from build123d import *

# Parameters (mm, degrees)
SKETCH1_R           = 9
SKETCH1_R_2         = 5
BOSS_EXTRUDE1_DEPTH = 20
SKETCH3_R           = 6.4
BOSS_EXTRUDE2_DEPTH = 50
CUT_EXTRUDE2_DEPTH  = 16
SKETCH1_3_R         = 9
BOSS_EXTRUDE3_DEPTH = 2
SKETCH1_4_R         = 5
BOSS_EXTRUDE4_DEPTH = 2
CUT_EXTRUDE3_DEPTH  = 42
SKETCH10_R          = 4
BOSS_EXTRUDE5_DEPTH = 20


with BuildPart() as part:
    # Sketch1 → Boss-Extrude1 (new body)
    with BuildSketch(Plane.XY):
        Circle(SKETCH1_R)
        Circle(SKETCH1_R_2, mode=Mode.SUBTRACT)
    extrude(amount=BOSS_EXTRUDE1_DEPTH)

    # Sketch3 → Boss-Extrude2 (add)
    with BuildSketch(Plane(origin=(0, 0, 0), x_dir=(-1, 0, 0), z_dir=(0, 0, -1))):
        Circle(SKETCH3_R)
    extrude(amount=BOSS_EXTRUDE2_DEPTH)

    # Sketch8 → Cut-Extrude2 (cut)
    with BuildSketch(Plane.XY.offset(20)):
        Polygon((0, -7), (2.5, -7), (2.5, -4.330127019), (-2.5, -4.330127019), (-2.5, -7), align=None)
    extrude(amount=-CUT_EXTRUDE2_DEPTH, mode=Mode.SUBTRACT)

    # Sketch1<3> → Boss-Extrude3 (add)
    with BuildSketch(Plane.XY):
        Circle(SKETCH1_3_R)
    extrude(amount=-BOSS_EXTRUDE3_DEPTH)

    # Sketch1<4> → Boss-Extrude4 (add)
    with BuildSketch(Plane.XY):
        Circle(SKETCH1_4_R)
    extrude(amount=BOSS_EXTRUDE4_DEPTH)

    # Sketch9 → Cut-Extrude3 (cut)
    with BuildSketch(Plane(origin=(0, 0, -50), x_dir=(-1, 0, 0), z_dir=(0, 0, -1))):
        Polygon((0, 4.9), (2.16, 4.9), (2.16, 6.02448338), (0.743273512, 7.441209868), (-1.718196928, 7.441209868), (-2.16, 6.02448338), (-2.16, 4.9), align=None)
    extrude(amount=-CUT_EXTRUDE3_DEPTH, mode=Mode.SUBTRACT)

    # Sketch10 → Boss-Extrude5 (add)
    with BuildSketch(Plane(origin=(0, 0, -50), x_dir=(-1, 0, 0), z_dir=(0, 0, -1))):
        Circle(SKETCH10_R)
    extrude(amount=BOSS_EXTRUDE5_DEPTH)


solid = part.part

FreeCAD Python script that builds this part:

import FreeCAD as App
import Part
import Sketcher
from FreeCAD import Vector
Q = App.Units.Quantity


def add_polygon(sketch, points):
    """Adds a closed chain of lines whose ends are joined by coincident constraints."""
    first, n = sketch.GeometryCount, len(points)
    for a, b in zip(points, points[1:] + points[:1]):
        sketch.addGeometry(Part.LineSegment(App.Vector(*a, 0), App.Vector(*b, 0)), False)
    for i in range(n):
        sketch.addConstraint(Sketcher.Constraint("Coincident", first + i, 2, first + (i + 1) % n, 1))

doc = App.newDocument("Part")
body = doc.addObject("PartDesign::Body", "Body")

# Sketch on XY plane
sketch1 = body.newObject("Sketcher::SketchObject", "Sketch")
sketch1.AttachmentSupport = (doc.getObject("XY_Plane"), [""])
sketch1.MapMode = "FlatFace"
sketch1.addGeometry([
    Part.Circle(Vector(0, 0, 0), Vector(0, 0, 1), 9),
    Part.Circle(Vector(0, 0, 0), Vector(0, 0, 1), 5),
], False)
sketch1.addConstraint([
    Sketcher.Constraint("Coincident", 0, 3, -1, 1),
    Sketcher.Constraint("Coincident", 1, 3, -1, 1),
    Sketcher.Constraint("Diameter", 0, 18.0),
    Sketcher.Constraint("Diameter", 1, 10.0),
])
pad1 = body.newObject("PartDesign::Pad", "Pad")
pad1.Profile = sketch1
pad1.Length = 20

# Sketch on XY plane
sketch2 = body.newObject("Sketcher::SketchObject", "Sketch001")
sketch2.AttachmentSupport = (doc.getObject("XY_Plane"), [""])
sketch2.MapMode = "FlatFace"
sketch2.addGeometry(Part.Circle(Vector(0, 0, 0), Vector(0, 0, 1), 6), False)
sketch2.addConstraint([
    Sketcher.Constraint("Coincident", 0, 3, -1, 1),
    Sketcher.Constraint("Diameter", 0, 12.8),
])
pad2 = body.newObject("PartDesign::Pad", "Pad001")
pad2.Profile = sketch2
pad2.Length = 50
pad2.Reversed = True

# Sketch on XY plane
sketch3 = body.newObject("Sketcher::SketchObject", "Sketch002")
sketch3.AttachmentSupport = (doc.getObject("XY_Plane"), [""])
sketch3.MapMode = "FlatFace"
sketch3.AttachmentOffset = App.Placement(Vector(0, 0, 20), App.Rotation())
add_polygon(sketch3, [(2.5, -7), (2.5, -4.3), (-2.5, -4.3), (-2.5, -7)])  # lines 0-3
sketch3.addConstraint([
    Sketcher.Constraint("Vertical", 0),
    Sketcher.Constraint("Horizontal", 1),
    Sketcher.Constraint("Vertical", 2),
    Sketcher.Constraint("Horizontal", 3),
    Sketcher.Constraint("DistanceX", 1, 2, 1, 1, 5.0),
    Sketcher.Constraint("DistanceY", 2, 2, -1, 1, 7.0),
    Sketcher.Constraint("DistanceX", -1, 1, 0, 2, 2.5),
    Sketcher.Constraint("DistanceY", 0, 1, 0, 2, 2.669873),
])
pocket1 = body.newObject("PartDesign::Pocket", "Pocket")
pocket1.Profile = sketch3
pocket1.Length = 16

# Sketch on XY plane
sketch4 = body.newObject("Sketcher::SketchObject", "Sketch003")
sketch4.AttachmentSupport = (doc.getObject("XY_Plane"), [""])
sketch4.MapMode = "FlatFace"
sketch4.addGeometry(Part.Circle(Vector(0, 0, 0), Vector(0, 0, 1), 9), False)
sketch4.addConstraint([
    Sketcher.Constraint("Coincident", 0, 3, -1, 1),
    Sketcher.Constraint("Diameter", 0, 18.0),
])
pad3 = body.newObject("PartDesign::Pad", "Pad002")
pad3.Profile = sketch4
pad3.Length = 2
pad3.Reversed = True

# Sketch on XY plane
sketch5 = body.newObject("Sketcher::SketchObject", "Sketch004")
sketch5.AttachmentSupport = (doc.getObject("XY_Plane"), [""])
sketch5.MapMode = "FlatFace"
sketch5.addGeometry(Part.Circle(Vector(0, 0, 0), Vector(0, 0, 1), 5), False)
sketch5.addConstraint([
    Sketcher.Constraint("Coincident", 0, 3, -1, 1),
    Sketcher.Constraint("Diameter", 0, 10.0),
])
pad4 = body.newObject("PartDesign::Pad", "Pad003")
pad4.Profile = sketch5
pad4.Length = 2

# Sketch on XY plane
sketch6 = body.newObject("Sketcher::SketchObject", "Sketch005")
sketch6.AttachmentSupport = (doc.getObject("XY_Plane"), [""])
sketch6.MapMode = "FlatFace"
sketch6.AttachmentOffset = App.Placement(Vector(0, 0, -50), App.Rotation())
add_polygon(sketch6, [(-2.2, 4.9), (-2.2, 6), (-0.7, 7.4), (1.7, 7.4), (2.2, 6), (2.2, 4.9)])  # lines 0-5
sketch6.addConstraint([
    Sketcher.Constraint("Vertical", 0),
    Sketcher.Constraint("Horizontal", 2),
    Sketcher.Constraint("Vertical", 4),
    Sketcher.Constraint("Horizontal", 5),
    Sketcher.Constraint("Symmetric", 0, 2, 3, 2, -2),
    Sketcher.Constraint("Angle", 1, Q("45 deg")),
    Sketcher.Constraint("DistanceX", 5, 2, 5, 1, 4.32),
    Sketcher.Constraint("DistanceY", -1, 1, 4, 2, 4.9),
    Sketcher.Constraint("DistanceX", 2, 1, 2, 2, 2.46147),
    Sketcher.Constraint("DistanceY", 0, 1, 0, 2, 1.124483),
    Sketcher.Constraint("DistanceY", -1, 1, 1, 2, 7.44121),
])
pocket2 = body.newObject("PartDesign::Pocket", "Pocket001")
pocket2.Profile = sketch6
pocket2.Length = 42
pocket2.Reversed = True

# Sketch on XY plane
sketch7 = body.newObject("Sketcher::SketchObject", "Sketch006")
sketch7.AttachmentSupport = (doc.getObject("XY_Plane"), [""])
sketch7.MapMode = "FlatFace"
sketch7.AttachmentOffset = App.Placement(Vector(0, 0, -50), App.Rotation())
sketch7.addGeometry(Part.Circle(Vector(0, 0, 0), Vector(0, 0, 1), 4), False)
sketch7.addConstraint([
    Sketcher.Constraint("Coincident", 0, 3, -1, 1),
    Sketcher.Constraint("Diameter", 0, 8.0),
])
pad5 = body.newObject("PartDesign::Pad", "Pad004")
pad5.Profile = sketch7
pad5.Length = 20
pad5.Reversed = True

doc.recompute()
